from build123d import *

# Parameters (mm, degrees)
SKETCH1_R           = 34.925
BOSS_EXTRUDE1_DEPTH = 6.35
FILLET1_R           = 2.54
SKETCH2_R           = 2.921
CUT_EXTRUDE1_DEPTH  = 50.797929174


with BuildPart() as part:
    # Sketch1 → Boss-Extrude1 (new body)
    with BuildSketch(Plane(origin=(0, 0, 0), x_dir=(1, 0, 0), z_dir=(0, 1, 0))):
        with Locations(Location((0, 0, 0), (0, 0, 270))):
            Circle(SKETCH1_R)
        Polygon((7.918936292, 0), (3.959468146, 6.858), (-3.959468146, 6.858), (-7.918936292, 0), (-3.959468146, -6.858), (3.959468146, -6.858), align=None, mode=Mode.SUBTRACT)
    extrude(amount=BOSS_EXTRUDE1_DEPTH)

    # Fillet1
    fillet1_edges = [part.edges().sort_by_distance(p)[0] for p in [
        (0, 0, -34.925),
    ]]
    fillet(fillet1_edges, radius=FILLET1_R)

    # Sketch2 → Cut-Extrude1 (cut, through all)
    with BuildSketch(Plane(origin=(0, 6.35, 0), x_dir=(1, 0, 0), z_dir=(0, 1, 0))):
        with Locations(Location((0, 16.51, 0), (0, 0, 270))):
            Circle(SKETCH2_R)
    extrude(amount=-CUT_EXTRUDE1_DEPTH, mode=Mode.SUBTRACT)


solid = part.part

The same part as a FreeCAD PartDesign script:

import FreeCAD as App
import Part
import Sketcher
from FreeCAD import Vector
Q = App.Units.Quantity


def edges_at(feature, points):
    """Names of the edges that pass closest to the given points."""
    edges = feature.Shape.Edges
    near = lambda p: min(range(len(edges)), key=lambda i: edges[i].distToShape(Part.Vertex(*p))[0])
    return sorted({f"Edge{near(p) + 1}" for p in points})

doc = App.newDocument("Part")
body = doc.addObject("PartDesign::Body", "Body")

sketch1 = body.newObject("Sketcher::SketchObject", "Sketch")
sketch1.AttachmentSupport = (doc.getObject("XZ_Plane"), [""])
sketch1.MapMode = "FlatFace"
sketch1.addGeometry([
    Part.Circle(Vector(0, 0, 0), Vector(0, 0, 1), 34.925),
    Part.LineSegment(Vector(3.959468, -6.858, 0), Vector(7.918936, 0, 0)),
    Part.LineSegment(Vector(7.918936, 0, 0), Vector(3.959468, 6.858, 0)),
    Part.LineSegment(Vector(3.959468, 6.858, 0), Vector(-3.959468, 6.858, 0)),
    Part.LineSegment(Vector(-3.959468, 6.858, 0), Vector(-7.918936, 0, 0)),
    Part.LineSegment(Vector(-7.918936, 0, 0), Vector(-3.959468, -6.858, 0)),
    Part.LineSegment(Vector(-3.959468, -6.858, 0), Vector(3.959468, -6.858, 0)),
], False)
sketch1.addConstraint([
    Sketcher.Constraint("Coincident", 1, 2, 2, 1),
    Sketcher.Constraint("Coincident", 2, 2, 3, 1),
    Sketcher.Constraint("Coincident", 3, 2, 4, 1),
    Sketcher.Constraint("Coincident", 4, 2, 5, 1),
    Sketcher.Constraint("Coincident", 5, 2, 6, 1),
    Sketcher.Constraint("Coincident", 6, 2, 1, 1),
    Sketcher.Constraint("Horizontal", 3),
    Sketcher.Constraint("Horizontal", 6),
    Sketcher.Constraint("Coincident", 0, 3, -1, 1),
    Sketcher.Constraint("Symmetric", 1, 2, 4, 2, -1, 1),
    Sketcher.Constraint("Symmetric", 2, 2, 5, 2, -1, 1),
    Sketcher.Constraint("PointOnObject", 1, 2, -1),
    Sketcher.Constraint("Parallel", 1, 4),
    Sketcher.Constraint("Vertical", 3, 2, 5, 2),
    Sketcher.Constraint("Diameter", 0, Q("2.75 in")),
    Sketcher.Constraint("Angle", 1, Q("60 deg")),
    Sketcher.Constraint("DistanceY", -1, 1, 2, 2, Q("0.27 in")),
    Sketcher.Constraint("DistanceX", 3, 2, 3, 1, Q("7.918936 mm")),
])
pad1 = body.newObject("PartDesign::Pad", "Pad")
pad1.Profile = sketch1
pad1.Length = Q("0.25 in")
pad1.Reversed = True
doc.recompute()

fillet = body.newObject("PartDesign::Fillet", "Fillet")
fillet.Base = (pad1, edges_at(pad1, [(0, 0, -34.925)]))
fillet.Radius = Q("0.1 in")

sketch2 = body.newObject("Sketcher::SketchObject", "Sketch001")
sketch2.AttachmentSupport = (doc.getObject("XZ_Plane"), [""])
sketch2.MapMode = "FlatFace"
sketch2.AttachmentOffset = App.Placement(Vector(0, 0, -0.25 * 25.4), App.Rotation())
sketch2.addGeometry(Part.Circle(Vector(0, -16.51, 0), Vector(0, 0, 1), 2.921), False)
sketch2.addConstraint([
    Sketcher.Constraint("PointOnObject", 0, 3, -2),
    Sketcher.Constraint("Diameter", 0, Q("0.23 in")),
    Sketcher.Constraint("DistanceY", 0, 3, -1, 1, Q("0.65 in")),
])
pocket1 = body.newObject("PartDesign::Pocket", "Pocket")
pocket1.Profile = sketch2
pocket1.Type = "ThroughAll"
pocket1.Reversed = True

doc.recompute()
